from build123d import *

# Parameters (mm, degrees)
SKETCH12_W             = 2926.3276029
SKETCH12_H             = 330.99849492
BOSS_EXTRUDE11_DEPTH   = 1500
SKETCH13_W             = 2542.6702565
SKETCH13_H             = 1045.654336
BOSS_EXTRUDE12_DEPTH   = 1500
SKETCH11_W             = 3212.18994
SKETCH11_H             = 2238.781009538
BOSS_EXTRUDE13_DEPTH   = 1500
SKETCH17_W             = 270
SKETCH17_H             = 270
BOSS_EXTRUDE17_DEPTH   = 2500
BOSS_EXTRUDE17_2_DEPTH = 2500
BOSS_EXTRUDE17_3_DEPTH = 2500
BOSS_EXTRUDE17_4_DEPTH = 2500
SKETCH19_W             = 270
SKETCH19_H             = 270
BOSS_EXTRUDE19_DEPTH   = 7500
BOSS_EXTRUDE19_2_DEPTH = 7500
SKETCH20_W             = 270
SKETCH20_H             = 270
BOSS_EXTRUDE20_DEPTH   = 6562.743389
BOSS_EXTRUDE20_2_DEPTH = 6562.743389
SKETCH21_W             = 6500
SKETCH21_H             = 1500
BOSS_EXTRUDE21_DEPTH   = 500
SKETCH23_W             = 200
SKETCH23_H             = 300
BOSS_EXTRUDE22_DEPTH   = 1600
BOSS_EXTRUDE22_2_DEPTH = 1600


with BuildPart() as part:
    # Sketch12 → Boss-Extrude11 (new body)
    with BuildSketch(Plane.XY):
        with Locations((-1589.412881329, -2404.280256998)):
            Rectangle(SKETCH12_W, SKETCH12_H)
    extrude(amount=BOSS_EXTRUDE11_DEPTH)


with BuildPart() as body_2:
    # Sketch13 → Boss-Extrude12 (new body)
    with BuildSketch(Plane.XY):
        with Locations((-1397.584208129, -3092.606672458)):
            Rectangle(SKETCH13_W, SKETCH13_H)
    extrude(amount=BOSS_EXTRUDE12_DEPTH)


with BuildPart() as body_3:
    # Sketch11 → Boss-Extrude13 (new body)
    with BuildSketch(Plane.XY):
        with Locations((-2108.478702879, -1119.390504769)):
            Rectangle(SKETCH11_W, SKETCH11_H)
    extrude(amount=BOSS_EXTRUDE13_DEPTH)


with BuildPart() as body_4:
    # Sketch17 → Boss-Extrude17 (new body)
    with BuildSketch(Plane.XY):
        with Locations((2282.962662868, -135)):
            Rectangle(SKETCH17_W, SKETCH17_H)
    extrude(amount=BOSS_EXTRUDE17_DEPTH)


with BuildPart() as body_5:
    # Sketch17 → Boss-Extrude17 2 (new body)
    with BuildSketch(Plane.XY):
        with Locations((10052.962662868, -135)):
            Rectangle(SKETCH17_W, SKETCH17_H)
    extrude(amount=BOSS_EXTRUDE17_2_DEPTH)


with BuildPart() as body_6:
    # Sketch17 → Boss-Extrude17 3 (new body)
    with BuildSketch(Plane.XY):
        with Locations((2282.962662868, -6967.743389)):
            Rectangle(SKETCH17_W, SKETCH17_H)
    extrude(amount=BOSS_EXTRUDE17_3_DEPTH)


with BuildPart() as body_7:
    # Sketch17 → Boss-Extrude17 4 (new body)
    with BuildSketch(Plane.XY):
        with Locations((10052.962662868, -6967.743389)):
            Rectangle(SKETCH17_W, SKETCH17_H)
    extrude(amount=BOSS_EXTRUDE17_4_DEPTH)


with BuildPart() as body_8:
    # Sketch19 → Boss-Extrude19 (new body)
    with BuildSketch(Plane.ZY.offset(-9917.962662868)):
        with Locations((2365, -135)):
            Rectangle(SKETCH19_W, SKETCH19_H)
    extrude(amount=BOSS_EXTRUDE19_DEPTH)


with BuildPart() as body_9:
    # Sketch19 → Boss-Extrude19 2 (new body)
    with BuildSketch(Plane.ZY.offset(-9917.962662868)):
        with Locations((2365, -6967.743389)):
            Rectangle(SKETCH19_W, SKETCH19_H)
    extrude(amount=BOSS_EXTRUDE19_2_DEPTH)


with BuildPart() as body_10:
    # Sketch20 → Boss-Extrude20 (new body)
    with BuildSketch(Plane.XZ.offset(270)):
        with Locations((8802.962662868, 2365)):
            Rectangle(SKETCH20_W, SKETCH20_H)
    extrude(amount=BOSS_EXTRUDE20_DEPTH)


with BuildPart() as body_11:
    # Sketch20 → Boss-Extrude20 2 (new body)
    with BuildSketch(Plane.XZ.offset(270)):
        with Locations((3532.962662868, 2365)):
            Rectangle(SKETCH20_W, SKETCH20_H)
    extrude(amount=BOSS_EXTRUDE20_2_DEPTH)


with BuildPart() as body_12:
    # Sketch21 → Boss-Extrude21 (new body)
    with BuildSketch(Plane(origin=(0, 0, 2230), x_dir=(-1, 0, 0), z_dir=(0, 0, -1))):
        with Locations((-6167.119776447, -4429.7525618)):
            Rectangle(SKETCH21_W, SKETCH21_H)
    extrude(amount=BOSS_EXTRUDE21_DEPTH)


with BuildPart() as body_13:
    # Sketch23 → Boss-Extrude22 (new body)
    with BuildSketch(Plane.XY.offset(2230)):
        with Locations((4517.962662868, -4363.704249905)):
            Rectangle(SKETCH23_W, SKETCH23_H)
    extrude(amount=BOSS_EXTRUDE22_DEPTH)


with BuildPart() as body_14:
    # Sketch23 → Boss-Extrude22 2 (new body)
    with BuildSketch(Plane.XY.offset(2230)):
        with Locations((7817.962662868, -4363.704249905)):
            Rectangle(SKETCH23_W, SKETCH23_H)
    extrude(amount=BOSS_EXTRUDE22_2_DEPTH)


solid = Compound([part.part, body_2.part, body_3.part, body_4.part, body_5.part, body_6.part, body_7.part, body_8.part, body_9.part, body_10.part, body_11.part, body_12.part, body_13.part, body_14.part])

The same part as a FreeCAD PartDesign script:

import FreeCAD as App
import Part
import Sketcher
from FreeCAD import Vector
Q = App.Units.Quantity


def add_polygon(sketch, points):
    """Adds a closed chain of lines whose ends are joined by coincident constraints."""
    first, n = sketch.GeometryCount, len(points)
    for a, b in zip(points, points[1:] + points[:1]):
        sketch.addGeometry(Part.LineSegment(App.Vector(*a, 0), App.Vector(*b, 0)), False)
    for i in range(n):
        sketch.addConstraint(Sketcher.Constraint("Coincident", first + i, 2, first + (i + 1) % n, 1))

doc = App.newDocument("Part")
body = doc.addObject("PartDesign::Body", "Body")

sketch1 = body.newObject("Sketcher::SketchObject", "Sketch")
sketch1.AttachmentSupport = (doc.getObject("XY_Plane"), [""])
sketch1.MapMode = "FlatFace"
add_polygon(sketch1, [(-3053, -2239), (-3053, -2570), (-126, -2570), (-126, -2239)])
sketch1.addConstraint([
    Sketcher.Constraint("Vertical", 0),
    Sketcher.Constraint("Horizontal", 1),
    Sketcher.Constraint("Vertical", 2),
    Sketcher.Constraint("Horizontal", 3),
    Sketcher.Constraint("DistanceX", 1, 1, 1, 2, Q("2926.327603 mm")),
    Sketcher.Constraint("DistanceY", 0, 2, 0, 1, Q("330.998495 mm")),
    Sketcher.Constraint("DistanceX", 1, 2, -1, 1, Q("126.24908 mm")),
    Sketcher.Constraint("DistanceY", 2, 2, -1, 1, Q("2238.78101 mm")),
])
pad1 = body.newObject("PartDesign::Pad", "Pad")
pad1.Profile = sketch1
pad1.Length = 1500
body2 = doc.addObject("PartDesign::Body", "Body001")

sketch2 = body2.newObject("Sketcher::SketchObject", "Sketch001")
sketch2.AttachmentSupport = (doc.getObject("XY_Plane001"), [""])
sketch2.MapMode = "FlatFace"
add_polygon(sketch2, [(-2669, -2570), (-2669, -3615), (-126, -3615), (-126, -2570)])
sketch2.addConstraint([
    Sketcher.Constraint("Vertical", 0),
    Sketcher.Constraint("Horizontal", 1),
    Sketcher.Constraint("Vertical", 2),
    Sketcher.Constraint("Horizontal", 3),
    Sketcher.Constraint("DistanceX", 1, 1, 1, 2, Q("2542.670257 mm")),
    Sketcher.Constraint("DistanceY", 0, 2, 0, 1, Q("1045.654336 mm")),
    Sketcher.Constraint("DistanceY", 0, 2, -1, 1, Q("3615.43384 mm")),
    Sketcher.Constraint("DistanceX", 1, 2, -1, 1, Q("126.24908 mm")),
])
pad2 = body2.newObject("PartDesign::Pad", "Pad001")
pad2.Profile = sketch2
pad2.Length = 1500
body3 = doc.addObject("PartDesign::Body", "Body002")

sketch3 = body3.newObject("Sketcher::SketchObject", "Sketch002")
sketch3.AttachmentSupport = (doc.getObject("XY_Plane002"), [""])
sketch3.MapMode = "FlatFace"
add_polygon(sketch3, [(-3715, 0), (-3715, -2239), (-502, -2239), (-502, 0)])
sketch3.addConstraint([
    Sketcher.Constraint("Vertical", 0),
    Sketcher.Constraint("Horizontal", 1),
    Sketcher.Constraint("Vertical", 2),
    Sketcher.Constraint("Horizontal", 3),
    Sketcher.Constraint("PointOnObject", 2, 2, -1),
    Sketcher.Constraint("DistanceX", 1, 1, 1, 2, Q("3212.18994 mm")),
    Sketcher.Constraint("DistanceY", 0, 2, 0, 1, Q("2238.78101 mm")),
    Sketcher.Constraint("DistanceX", 0, 2, -1, 1, Q("3714.573673 mm")),
])
pad3 = body3.newObject("PartDesign::Pad", "Pad002")
pad3.Profile = sketch3
pad3.Length = 1500
body4 = doc.addObject("PartDesign::Body", "Body003")

sketch4 = body4.newObject("Sketcher::SketchObject", "Sketch003")
sketch4.AttachmentSupport = (doc.getObject("XY_Plane003"), [""])
sketch4.MapMode = "FlatFace"
add_polygon(sketch4, [(2148, 0), (2148, -270), (2418, -270), (2418, 0)])
sketch4.addConstraint([
    Sketcher.Constraint("Vertical", 0),
    Sketcher.Constraint("Horizontal", 1),
    Sketcher.Constraint("Vertical", 2),
    Sketcher.Constraint("Horizontal", 3),
    Sketcher.Constraint("PointOnObject", 2, 2, -1),
    Sketcher.Constraint("Equal", 3, 0),
    Sketcher.Constraint("DistanceX", 1, 1, 1, 2, Q("270 mm")),
    Sketcher.Constraint("DistanceX", -1, 1, 0, 2, Q("2147.962663 mm")),
])
pad4 = body4.newObject("PartDesign::Pad", "Pad003")
pad4.Profile = sketch4
pad4.Length = 2500
body5 = doc.addObject("PartDesign::Body", "Body004")

sketch5 = body5.newObject("Sketcher::SketchObject", "Sketch004")
sketch5.AttachmentSupport = (doc.getObject("XY_Plane004"), [""])
sketch5.MapMode = "FlatFace"
add_polygon(sketch5, [(9918, 0), (9918, -270), (10188, -270), (10188, 0)])
sketch5.addConstraint([
    Sketcher.Constraint("Vertical", 0),
    Sketcher.Constraint("Horizontal", 1),
    Sketcher.Constraint("Vertical", 2),
    Sketcher.Constraint("Horizontal", 3),
    Sketcher.Constraint("PointOnObject", 2, 2, -1),
    Sketcher.Constraint("Equal", 3, 0),
    Sketcher.Constraint("DistanceX", 1, 1, 1, 2, Q("270 mm")),
    Sketcher.Constraint("DistanceX", -1, 1, 0, 2, Q("9917.962663 mm")),
])
pad5 = body5.newObject("PartDesign::Pad", "Pad004")
pad5.Profile = sketch5
pad5.Length = 2500
body6 = doc.addObject("PartDesign::Body", "Body005")

sketch6 = body6.newObject("Sketcher::SketchObject", "Sketch005")
sketch6.AttachmentSupport = (doc.getObject("XY_Plane005"), [""])
sketch6.MapMode = "FlatFace"
add_polygon(sketch6, [(2148, -6833), (2148, -7103), (2418, -7103), (2418, -6833)])
sketch6.addConstraint([
    Sketcher.Constraint("Vertical", 0),
    Sketcher.Constraint("Horizontal", 1),
    Sketcher.Constraint("Vertical", 2),
    Sketcher.Constraint("Horizontal", 3),
    Sketcher.Constraint("Equal", 3, 0),
    Sketcher.Constraint("DistanceX", 1, 1, 1, 2, Q("270 mm")),
    Sketcher.Constraint("DistanceY", 0, 2, -1, 1, Q("7102.743389 mm")),
    Sketcher.Constraint("DistanceX", -1, 1, 0, 2, Q("2147.962663 mm")),
])
pad6 = body6.newObject("PartDesign::Pad", "Pad005")
pad6.Profile = sketch6
pad6.Length = 2500
body7 = doc.addObject("PartDesign::Body", "Body006")

sketch7 = body7.newObject("Sketcher::SketchObject", "Sketch006")
sketch7.AttachmentSupport = (doc.getObject("XY_Plane006"), [""])
sketch7.MapMode = "FlatFace"
add_polygon(sketch7, [(9918, -6833), (9918, -7103), (10188, -7103), (10188, -6833)])
sketch7.addConstraint([
    Sketcher.Constraint("Vertical", 0),
    Sketcher.Constraint("Horizontal", 1),
    Sketcher.Constraint("Vertical", 2),
    Sketcher.Constraint("Horizontal", 3),
    Sketcher.Constraint("Equal", 3, 0),
    Sketcher.Constraint("DistanceX", 1, 1, 1, 2, Q("270 mm")),
    Sketcher.Constraint("DistanceY", 0, 2, -1, 1, Q("7102.743389 mm")),
    Sketcher.Constraint("DistanceX", -1, 1, 0, 2, Q("9917.962663 mm")),
])
pad7 = body7.newObject("PartDesign::Pad", "Pad006")
pad7.Profile = sketch7
pad7.Length = 2500
body8 = doc.addObject("PartDesign::Body", "Body007")

sketch8 = body8.newObject("Sketcher::SketchObject", "Sketch007")
sketch8.AttachmentSupport = (doc.getObject("YZ_Plane007"), [""])
sketch8.MapMode = "FlatFace"
sketch8.AttachmentOffset = App.Placement(Vector(0, 0, 9917.962663), App.Rotation())
add_polygon(sketch8, [(0, 2230), (-270, 2230), (-270, 2500), (0, 2500)])
sketch8.addConstraint([
    Sketcher.Constraint("Horizontal", 0),
    Sketcher.Constraint("Vertical", 1),
    Sketcher.Constraint("Horizontal", 2),
    Sketcher.Constraint("Vertical", 3),
    Sketcher.Constraint("PointOnObject", 2, 2, -2),
    Sketcher.Constraint("Equal", 2, 1),
    Sketcher.Constraint("DistanceX", 0, 2, 0, 1, Q("270 mm")),
    Sketcher.Constraint("DistanceY", -1, 1, 0, 2, Q("2230 mm")),
])
pad8 = body8.newObject("PartDesign::Pad", "Pad007")
pad8.Profile = sketch8
pad8.Length = 7500
pad8.Reversed = True
body9 = doc.addObject("PartDesign::Body", "Body008")

sketch9 = body9.newObject("Sketcher::SketchObject", "Sketch008")
sketch9.AttachmentSupport = (doc.getObject("YZ_Plane008"), [""])
sketch9.MapMode = "FlatFace"
sketch9.AttachmentOffset = App.Placement(Vector(0, 0, 9917.962663), App.Rotation())
add_polygon(sketch9, [(-6833, 2230), (-7103, 2230), (-7103, 2500), (-6833, 2500)])
sketch9.addConstraint([
    Sketcher.Constraint("Horizontal", 0),
    Sketcher.Constraint("Vertical", 1),
    Sketcher.Constraint("Horizontal", 2),
    Sketcher.Constraint("Vertical", 3),
    Sketcher.Constraint("Equal", 2, 1),
    Sketcher.Constraint("DistanceX", 0, 2, 0, 1, Q("270 mm")),
    Sketcher.Constraint("DistanceY", -1, 1, 0, 2, Q("2230 mm")),
    Sketcher.Constraint("DistanceX", 0, 2, -1, 1, Q("7102.743389 mm")),
])
pad9 = body9.newObject("PartDesign::Pad", "Pad008")
pad9.Profile = sketch9
pad9.Length = 7500
pad9.Reversed = True
body10 = doc.addObject("PartDesign::Body", "Body009")

sketch10 = body10.newObject("Sketcher::SketchObject", "Sketch009")
sketch10.AttachmentSupport = (doc.getObject("XZ_Plane009"), [""])
sketch10.MapMode = "FlatFace"
sketch10.AttachmentOffset = App.Placement(Vector(0, 0, 270), App.Rotation())
add_polygon(sketch10, [(8668, 2500), (8668, 2230), (8938, 2230), (8938, 2500)])
sketch10.addConstraint([
    Sketcher.Constraint("Vertical", 0),
    Sketcher.Constraint("Horizontal", 1),
    Sketcher.Constraint("Vertical", 2),
    Sketcher.Constraint("Horizontal", 3),
    Sketcher.Constraint("Equal", 3, 0),
    Sketcher.Constraint("DistanceX", 1, 1, 1, 2, Q("270 mm")),
    Sketcher.Constraint("DistanceY", -1, 1, 0, 2, Q("2230 mm")),
    Sketcher.Constraint("DistanceX", -1, 1, 0, 2, Q("8667.962663 mm")),
])
pad10 = body10.newObject("PartDesign::Pad", "Pad009")
pad10.Profile = sketch10
pad10.Length = 6562.743389
body11 = doc.addObject("PartDesign::Body", "Body010")

sketch11 = body11.newObject("Sketcher::SketchObject", "Sketch010")
sketch11.AttachmentSupport = (doc.getObject("XZ_Plane010"), [""])
sketch11.MapMode = "FlatFace"
sketch11.AttachmentOffset = App.Placement(Vector(0, 0, 270), App.Rotation())
add_polygon(sketch11, [(3398, 2500), (3398, 2230), (3668, 2230), (3668, 2500)])
sketch11.addConstraint([
    Sketcher.Constraint("Vertical", 0),
    Sketcher.Constraint("Horizontal", 1),
    Sketcher.Constraint("Vertical", 2),
    Sketcher.Constraint("Horizontal", 3),
    Sketcher.Constraint("Equal", 3, 0),
    Sketcher.Constraint("DistanceX", 1, 1, 1, 2, Q("270 mm")),
    Sketcher.Constraint("DistanceY", -1, 1, 0, 2, Q("2230 mm")),
    Sketcher.Constraint("DistanceX", -1, 1, 0, 2, Q("3397.962663 mm")),
])
pad11 = body11.newObject("PartDesign::Pad", "Pad010")
pad11.Profile = sketch11
pad11.Length = 6562.743389
body12 = doc.addObject("PartDesign::Body", "Body011")

sketch12 = body12.newObject("Sketcher::SketchObject", "Sketch011")
sketch12.AttachmentSupport = (doc.getObject("XY_Plane011"), [""])
sketch12.MapMode = "FlatFace"
sketch12.AttachmentOffset = App.Placement(Vector(0, 0, 2230), App.Rotation())
add_polygon(sketch12, [(9417, -3680), (9417, -5180), (2917, -5180), (2917, -3680)])
sketch12.addConstraint([
    Sketcher.Constraint("Vertical", 0),
    Sketcher.Constraint("Horizontal", 1),
    Sketcher.Constraint("Vertical", 2),
    Sketcher.Constraint("Horizontal", 3),
    Sketcher.Constraint("DistanceX", 1, 2, 1, 1, Q("6500 mm")),
    Sketcher.Constraint("DistanceY", 0, 2, 0, 1, Q("1500 mm")),
    Sketcher.Constraint("DistanceY", 0, 2, -1, 1, Q("5179.752562 mm")),
    Sketcher.Constraint("DistanceX", -1, 1, 0, 2, Q("9417.119776 mm")),
])
pad12 = body12.newObject("PartDesign::Pad", "Pad011")
pad12.Profile = sketch12
pad12.Length = 500
pad12.Reversed = True
body13 = doc.addObject("PartDesign::Body", "Body012")

sketch13 = body13.newObject("Sketcher::SketchObject", "Sketch012")
sketch13.AttachmentSupport = (doc.getObject("XY_Plane012"), [""])
sketch13.MapMode = "FlatFace"
sketch13.AttachmentOffset = App.Placement(Vector(0, 0, 2230), App.Rotation())
add_polygon(sketch13, [(4418, -4214), (4418, -4514), (4618, -4514), (4618, -4214)])
sketch13.addConstraint([
    Sketcher.Constraint("Vertical", 0),
    Sketcher.Constraint("Horizontal", 1),
    Sketcher.Constraint("Vertical", 2),
    Sketcher.Constraint("Horizontal", 3),
    Sketcher.Constraint("DistanceX", 1, 1, 1, 2, Q("200 mm")),
    Sketcher.Constraint("DistanceY", 0, 2, 0, 1, Q("300 mm")),
    Sketcher.Constraint("DistanceY", 0, 2, -1, 1, Q("4513.70425 mm")),
    Sketcher.Constraint("DistanceX", -1, 1, 0, 2, Q("4417.962663 mm")),
])
pad13 = body13.newObject("PartDesign::Pad", "Pad012")
pad13.Profile = sketch13
pad13.Length = 1600
body14 = doc.addObject("PartDesign::Body", "Body013")

sketch14 = body14.newObject("Sketcher::SketchObject", "Sketch013")
sketch14.AttachmentSupport = (doc.getObject("XY_Plane013"), [""])
sketch14.MapMode = "FlatFace"
sketch14.AttachmentOffset = App.Placement(Vector(0, 0, 2230), App.Rotation())
add_polygon(sketch14, [(7718, -4214), (7718, -4514), (7918, -4514), (7918, -4214)])
sketch14.addConstraint([
    Sketcher.Constraint("Vertical", 0),
    Sketcher.Constraint("Horizontal", 1),
    Sketcher.Constraint("Vertical", 2),
    Sketcher.Constraint("Horizontal", 3),
    Sketcher.Constraint("DistanceX", 1, 1, 1, 2, Q("200 mm")),
    Sketcher.Constraint("DistanceY", 0, 2, 0, 1, Q("300 mm")),
    Sketcher.Constraint("DistanceY", 0, 2, -1, 1, Q("4513.70425 mm")),
    Sketcher.Constraint("DistanceX", -1, 1, 0, 2, Q("7717.962663 mm")),
])
pad14 = body14.newObject("PartDesign::Pad", "Pad013")
pad14.Profile = sketch14
pad14.Length = 1600

doc.recompute()
